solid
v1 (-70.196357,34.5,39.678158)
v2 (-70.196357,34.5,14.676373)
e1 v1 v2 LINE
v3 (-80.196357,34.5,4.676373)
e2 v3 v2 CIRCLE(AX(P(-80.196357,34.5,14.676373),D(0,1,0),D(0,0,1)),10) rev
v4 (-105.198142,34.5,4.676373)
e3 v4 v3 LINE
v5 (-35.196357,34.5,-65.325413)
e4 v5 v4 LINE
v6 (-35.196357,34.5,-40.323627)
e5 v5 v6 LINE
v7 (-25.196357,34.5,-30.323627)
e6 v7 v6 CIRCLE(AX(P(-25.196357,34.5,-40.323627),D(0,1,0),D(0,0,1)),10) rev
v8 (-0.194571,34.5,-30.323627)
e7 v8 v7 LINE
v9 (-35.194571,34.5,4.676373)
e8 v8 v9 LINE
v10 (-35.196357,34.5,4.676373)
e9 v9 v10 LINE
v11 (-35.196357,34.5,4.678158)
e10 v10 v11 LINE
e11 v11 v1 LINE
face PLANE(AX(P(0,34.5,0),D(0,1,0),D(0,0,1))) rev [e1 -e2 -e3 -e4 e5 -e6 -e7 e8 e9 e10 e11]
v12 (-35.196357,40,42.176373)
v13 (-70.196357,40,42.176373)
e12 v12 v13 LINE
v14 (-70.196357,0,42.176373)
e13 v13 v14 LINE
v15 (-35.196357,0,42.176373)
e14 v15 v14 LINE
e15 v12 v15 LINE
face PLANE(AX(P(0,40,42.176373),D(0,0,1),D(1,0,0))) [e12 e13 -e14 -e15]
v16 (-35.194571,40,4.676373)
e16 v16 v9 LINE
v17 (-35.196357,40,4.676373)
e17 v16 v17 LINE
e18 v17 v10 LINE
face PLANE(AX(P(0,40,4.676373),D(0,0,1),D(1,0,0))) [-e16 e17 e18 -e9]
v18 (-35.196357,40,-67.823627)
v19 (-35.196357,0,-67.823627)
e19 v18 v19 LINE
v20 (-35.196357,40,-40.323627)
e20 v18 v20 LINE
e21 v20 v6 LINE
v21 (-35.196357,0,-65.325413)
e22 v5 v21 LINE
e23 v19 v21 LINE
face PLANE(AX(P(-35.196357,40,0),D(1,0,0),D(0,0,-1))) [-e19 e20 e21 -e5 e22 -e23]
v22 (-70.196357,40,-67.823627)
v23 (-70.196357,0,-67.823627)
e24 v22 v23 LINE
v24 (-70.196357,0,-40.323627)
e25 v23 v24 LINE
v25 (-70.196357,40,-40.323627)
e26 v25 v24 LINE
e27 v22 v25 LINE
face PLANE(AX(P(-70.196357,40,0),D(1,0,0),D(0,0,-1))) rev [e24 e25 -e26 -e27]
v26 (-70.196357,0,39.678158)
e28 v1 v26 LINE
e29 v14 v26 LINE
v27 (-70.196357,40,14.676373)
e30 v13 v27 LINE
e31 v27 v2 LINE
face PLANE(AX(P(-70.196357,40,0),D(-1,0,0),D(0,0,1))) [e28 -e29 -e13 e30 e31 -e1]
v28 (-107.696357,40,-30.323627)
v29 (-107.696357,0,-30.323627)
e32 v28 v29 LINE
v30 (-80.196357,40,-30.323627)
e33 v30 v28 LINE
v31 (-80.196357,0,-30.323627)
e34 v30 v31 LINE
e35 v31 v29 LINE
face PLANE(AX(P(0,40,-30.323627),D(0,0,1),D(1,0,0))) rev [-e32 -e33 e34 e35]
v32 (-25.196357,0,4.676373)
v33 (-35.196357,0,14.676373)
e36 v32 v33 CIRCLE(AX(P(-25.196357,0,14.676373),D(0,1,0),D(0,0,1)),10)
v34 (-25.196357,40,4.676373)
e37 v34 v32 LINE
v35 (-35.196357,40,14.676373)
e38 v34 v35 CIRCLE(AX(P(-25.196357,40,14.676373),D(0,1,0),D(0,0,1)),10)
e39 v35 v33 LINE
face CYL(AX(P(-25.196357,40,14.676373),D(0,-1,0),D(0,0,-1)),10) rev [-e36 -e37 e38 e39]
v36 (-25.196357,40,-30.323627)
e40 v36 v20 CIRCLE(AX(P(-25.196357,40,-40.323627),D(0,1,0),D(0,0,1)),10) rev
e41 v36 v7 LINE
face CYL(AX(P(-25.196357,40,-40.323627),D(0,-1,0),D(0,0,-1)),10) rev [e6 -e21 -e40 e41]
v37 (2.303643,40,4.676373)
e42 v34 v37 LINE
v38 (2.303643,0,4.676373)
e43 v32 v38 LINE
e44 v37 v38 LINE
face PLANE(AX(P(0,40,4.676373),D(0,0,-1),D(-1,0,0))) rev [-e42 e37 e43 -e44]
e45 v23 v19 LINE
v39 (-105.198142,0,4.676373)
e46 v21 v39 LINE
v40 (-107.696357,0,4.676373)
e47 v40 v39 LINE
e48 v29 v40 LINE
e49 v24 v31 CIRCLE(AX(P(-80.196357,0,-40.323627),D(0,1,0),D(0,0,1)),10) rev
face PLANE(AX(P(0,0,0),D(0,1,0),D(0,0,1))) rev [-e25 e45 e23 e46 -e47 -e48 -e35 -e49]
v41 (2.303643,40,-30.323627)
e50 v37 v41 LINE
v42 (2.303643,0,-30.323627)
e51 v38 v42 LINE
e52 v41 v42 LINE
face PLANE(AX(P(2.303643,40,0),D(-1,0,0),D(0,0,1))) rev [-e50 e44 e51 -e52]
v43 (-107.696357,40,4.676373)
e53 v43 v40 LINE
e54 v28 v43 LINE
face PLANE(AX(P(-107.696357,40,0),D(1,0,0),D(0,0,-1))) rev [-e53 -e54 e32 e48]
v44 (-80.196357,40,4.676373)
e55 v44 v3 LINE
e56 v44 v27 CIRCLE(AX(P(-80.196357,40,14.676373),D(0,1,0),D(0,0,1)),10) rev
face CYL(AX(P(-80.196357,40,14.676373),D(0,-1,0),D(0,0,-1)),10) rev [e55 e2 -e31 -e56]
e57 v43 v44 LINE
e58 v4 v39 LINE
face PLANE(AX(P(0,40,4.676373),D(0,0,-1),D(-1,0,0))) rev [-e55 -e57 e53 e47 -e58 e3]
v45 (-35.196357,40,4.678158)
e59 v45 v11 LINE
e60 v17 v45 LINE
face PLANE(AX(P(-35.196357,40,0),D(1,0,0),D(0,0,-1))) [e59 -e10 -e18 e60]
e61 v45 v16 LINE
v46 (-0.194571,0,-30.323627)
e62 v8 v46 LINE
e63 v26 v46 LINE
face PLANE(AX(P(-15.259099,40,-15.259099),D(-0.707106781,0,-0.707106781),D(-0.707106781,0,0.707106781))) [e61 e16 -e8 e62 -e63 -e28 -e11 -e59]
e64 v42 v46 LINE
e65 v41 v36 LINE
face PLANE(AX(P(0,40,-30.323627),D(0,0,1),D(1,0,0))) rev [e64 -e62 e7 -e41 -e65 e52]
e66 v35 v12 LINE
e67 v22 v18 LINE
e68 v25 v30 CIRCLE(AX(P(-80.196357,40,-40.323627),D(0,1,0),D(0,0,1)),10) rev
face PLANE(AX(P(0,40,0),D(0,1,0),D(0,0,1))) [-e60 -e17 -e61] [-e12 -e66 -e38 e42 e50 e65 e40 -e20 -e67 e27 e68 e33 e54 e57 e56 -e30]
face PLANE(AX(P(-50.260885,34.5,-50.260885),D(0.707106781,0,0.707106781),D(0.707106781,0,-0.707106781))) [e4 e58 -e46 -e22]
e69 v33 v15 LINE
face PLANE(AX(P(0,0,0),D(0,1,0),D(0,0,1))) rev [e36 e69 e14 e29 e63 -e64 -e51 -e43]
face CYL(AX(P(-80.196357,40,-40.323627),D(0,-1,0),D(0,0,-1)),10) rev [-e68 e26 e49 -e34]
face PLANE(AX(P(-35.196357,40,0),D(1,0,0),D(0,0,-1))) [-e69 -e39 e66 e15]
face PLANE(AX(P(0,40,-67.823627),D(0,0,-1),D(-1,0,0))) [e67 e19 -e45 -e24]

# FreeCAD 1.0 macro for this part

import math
import FreeCAD as App
import Part
import Sketcher
from FreeCAD import Vector
Q = App.Units.Quantity

doc = App.newDocument("Part")
body = doc.addObject("PartDesign::Body", "Body")

# Sketch on XZ plane
sketch1 = body.newObject("Sketcher::SketchObject", "Sketch")
sketch1.AttachmentSupport = (doc.getObject("XZ_Plane"), [""])
sketch1.MapMode = "FlatFace"
sketch1.addGeometry(Part.LineSegment(Vector(-35.1964, -67.8236, 0), Vector(-70.1964, -67.8236, 0)), False)
sketch1.addGeometry(Part.LineSegment(Vector(-70.1964, -67.8236, 0), Vector(-70.1964, -40.3236, 0)), False)
sketch1.addGeometry(Part.ArcOfCircle(Part.Circle(Vector(-80.1964, -40.3236, 0), Vector(0, 0, 1), 10), math.radians(0), math.radians(90)), False)
sketch1.addGeometry(Part.LineSegment(Vector(-80.1964, -30.3236, 0), Vector(-107.6964, -30.3236, 0)), False)
sketch1.addGeometry(Part.LineSegment(Vector(-107.6964, -30.3236, 0), Vector(-107.6964, 4.6764, 0)), False)
sketch1.addGeometry(Part.LineSegment(Vector(-107.6964, 4.6764, 0), Vector(-80.1964, 4.6764, 0)), False)
sketch1.addGeometry(Part.ArcOfCircle(Part.Circle(Vector(-80.1964, 14.6764, 0), Vector(0, 0, 1), 10), math.radians(-90), math.radians(0)), False)
sketch1.addGeometry(Part.LineSegment(Vector(-70.1964, 14.6764, 0), Vector(-70.1964, 42.1764, 0)), False)
sketch1.addGeometry(Part.LineSegment(Vector(-70.1964, 42.1764, 0), Vector(-35.1964, 42.1764, 0)), False)
sketch1.addGeometry(Part.LineSegment(Vector(-35.1964, 42.1764, 0), Vector(-35.1964, 14.6764, 0)), False)
sketch1.addGeometry(Part.ArcOfCircle(Part.Circle(Vector(-25.1964, 14.6764, 0), Vector(0, 0, 1), 10), math.radians(180), math.radians(270)), False)
sketch1.addGeometry(Part.LineSegment(Vector(-25.1964, 4.6764, 0), Vector(2.3036, 4.6764, 0)), False)
sketch1.addGeometry(Part.LineSegment(Vector(2.3036, 4.6764, 0), Vector(2.3036, -30.3236, 0)), False)
sketch1.addGeometry(Part.LineSegment(Vector(2.3036, -30.3236, 0), Vector(-25.1964, -30.3236, 0)), False)
sketch1.addGeometry(Part.ArcOfCircle(Part.Circle(Vector(-25.1964, -40.3236, 0), Vector(0, 0, 1), 10), math.radians(90), math.radians(180)), False)
sketch1.addGeometry(Part.LineSegment(Vector(-35.1964, -40.3236, 0), Vector(-35.1964, -67.8236, 0)), False)
sketch1.addGeometry(Part.LineSegment(Vector(-35.1964, 4.6782, 0), Vector(-35.1964, 4.6764, 0)), False)
sketch1.addGeometry(Part.LineSegment(Vector(-35.1964, 4.6764, 0), Vector(-35.1946, 4.6764, 0)), False)
sketch1.addGeometry(Part.LineSegment(Vector(-35.1946, 4.6764, 0), Vector(-35.1964, 4.6782, 0)), False)
sketch1.addConstraint(Sketcher.Constraint("Coincident", 0, 2, 1, 1))
sketch1.addConstraint(Sketcher.Constraint("Tangent", 1, 2, 2, 1))
sketch1.addConstraint(Sketcher.Constraint("Tangent", 2, 2, 3, 1))
sketch1.addConstraint(Sketcher.Constraint("Coincident", 3, 2, 4, 1))
sketch1.addConstraint(Sketcher.Constraint("Coincident", 4, 2, 5, 1))
sketch1.addConstraint(Sketcher.Constraint("Tangent", 5, 2, 6, 1))
sketch1.addConstraint(Sketcher.Constraint("Tangent", 6, 2, 7, 1))
sketch1.addConstraint(Sketcher.Constraint("Coincident", 7, 2, 8, 1))
sketch1.addConstraint(Sketcher.Constraint("Coincident", 8, 2, 9, 1))
sketch1.addConstraint(Sketcher.Constraint("Tangent", 9, 2, 10, 1))
sketch1.addConstraint(Sketcher.Constraint("Tangent", 10, 2, 11, 1))
sketch1.addConstraint(Sketcher.Constraint("Coincident", 11, 2, 12, 1))
sketch1.addConstraint(Sketcher.Constraint("Coincident", 12, 2, 13, 1))
sketch1.addConstraint(Sketcher.Constraint("Tangent", 13, 2, 14, 1))
sketch1.addConstraint(Sketcher.Constraint("Tangent", 14, 2, 15, 1))
sketch1.addConstraint(Sketcher.Constraint("Coincident", 15, 2, 0, 1))
sketch1.addConstraint(Sketcher.Constraint("Coincident", 16, 2, 17, 1))
sketch1.addConstraint(Sketcher.Constraint("Coincident", 17, 2, 18, 1))
sketch1.addConstraint(Sketcher.Constraint("Coincident", 18, 2, 16, 1))
sketch1.addConstraint(Sketcher.Constraint("Horizontal", 0))
sketch1.addConstraint(Sketcher.Constraint("Vertical", 1))
sketch1.addConstraint(Sketcher.Constraint("Horizontal", 3))
sketch1.addConstraint(Sketcher.Constraint("Vertical", 4))
sketch1.addConstraint(Sketcher.Constraint("Horizontal", 5))
sketch1.addConstraint(Sketcher.Constraint("Vertical", 7))
sketch1.addConstraint(Sketcher.Constraint("Horizontal", 8))
sketch1.addConstraint(Sketcher.Constraint("Vertical", 9))
sketch1.addConstraint(Sketcher.Constraint("Horizontal", 11))
sketch1.addConstraint(Sketcher.Constraint("Vertical", 12))
sketch1.addConstraint(Sketcher.Constraint("Horizontal", 13))
sketch1.addConstraint(Sketcher.Constraint("Vertical", 15))
sketch1.addConstraint(Sketcher.Constraint("Vertical", 16))
sketch1.addConstraint(Sketcher.Constraint("Horizontal", 17))
sketch1.addConstraint(Sketcher.Constraint("Equal", 2, 6))
sketch1.addConstraint(Sketcher.Constraint("Equal", 6, 10))
sketch1.addConstraint(Sketcher.Constraint("Equal", 10, 14))
sketch1.addConstraint(Sketcher.Constraint("Horizontal", 6, 3, 10, 3))
sketch1.addConstraint(Sketcher.Constraint("Horizontal", 2, 3, 14, 3))
sketch1.addConstraint(Sketcher.Constraint("Horizontal", 11, 2, 16, 2))
sketch1.addConstraint(Sketcher.Constraint("Vertical", 2, 3, 6, 3))
sketch1.addConstraint(Sketcher.Constraint("Vertical", 10, 3, 14, 3))
sketch1.addConstraint(Sketcher.Constraint("Vertical", 15, 2, 16, 2))
sketch1.addConstraint(Sketcher.Constraint("Equal", 5, 11))
sketch1.addConstraint(Sketcher.Constraint("Equal", 13, 1))
sketch1.addConstraint(Sketcher.Constraint("Equal", 8, 4))
sketch1.addConstraint(Sketcher.Constraint("Equal", 1, 7))
sketch1.addConstraint(Sketcher.Constraint("Equal", 17, 16))
sketch1.addConstraint(Sketcher.Constraint("Radius", 2, Q("10 mm")))
sketch1.addConstraint(Sketcher.Constraint("DistanceX", 0, 2, 0, 1, Q("35 mm")))
sketch1.addConstraint(Sketcher.Constraint("DistanceX", 3, 2, 3, 1, Q("27.5 mm")))
sketch1.addConstraint(Sketcher.Constraint("DistanceX", 17, 1, 17, 2, Q("0.001786 mm")))
sketch1.addConstraint(Sketcher.Constraint("DistanceX", 17, 2, -1, 1, Q("35.194571 mm")))
sketch1.addConstraint(Sketcher.Constraint("DistanceY", -1, 1, 18, 2, Q("4.678158 mm")))
pad1 = body.newObject("PartDesign::Pad", "Pad")
pad1.Profile = sketch1
pad1.Length = 40
pad1.Reversed = True

# Sketch on XZ plane
sketch2 = body.newObject("Sketcher::SketchObject", "Sketch001")
sketch2.AttachmentSupport = (doc.getObject("XZ_Plane"), [""])
sketch2.MapMode = "FlatFace"
sketch2.addGeometry(Part.LineSegment(Vector(-35.1964, -65.3254, 0), Vector(-105.1981, 4.6764, 0)), False)
sketch2.addGeometry(Part.LineSegment(Vector(-105.1981, 4.6764, 0), Vector(-80.1964, 4.6764, 0)), False)
sketch2.addGeometry(Part.ArcOfCircle(Part.Circle(Vector(-80.1964, 14.6764, 0), Vector(0, 0, 1), 10), math.radians(-90), math.radians(0)), False)
sketch2.addGeometry(Part.LineSegment(Vector(-70.1964, 14.6764, 0), Vector(-70.1964, 39.6782, 0)), False)
sketch2.addGeometry(Part.LineSegment(Vector(-70.1964, 39.6782, 0), Vector(-35.1964, 4.6782, 0)), False)
sketch2.addGeometry(Part.LineSegment(Vector(-35.1964, 4.6782, 0), Vector(-35.1964, 4.6764, 0)), False)
sketch2.addGeometry(Part.LineSegment(Vector(-35.1964, 4.6764, 0), Vector(-35.1946, 4.6764, 0)), False)
sketch2.addGeometry(Part.LineSegment(Vector(-35.1946, 4.6764, 0), Vector(-0.1946, -30.3236, 0)), False)
sketch2.addGeometry(Part.LineSegment(Vector(-0.1946, -30.3236, 0), Vector(-25.1964, -30.3236, 0)), False)
sketch2.addGeometry(Part.ArcOfCircle(Part.Circle(Vector(-25.1964, -40.3236, 0), Vector(0, 0, 1), 10), math.radians(90), math.radians(180)), False)
sketch2.addGeometry(Part.LineSegment(Vector(-35.1964, -40.3236, 0), Vector(-35.1964, -65.3254, 0)), False)
sketch2.addConstraint(Sketcher.Constraint("Coincident", 0, 2, 1, 1))
sketch2.addConstraint(Sketcher.Constraint("Tangent", 1, 2, 2, 1))
sketch2.addConstraint(Sketcher.Constraint("Tangent", 2, 2, 3, 1))
sketch2.addConstraint(Sketcher.Constraint("Coincident", 3, 2, 4, 1))
sketch2.addConstraint(Sketcher.Constraint("Coincident", 4, 2, 5, 1))
sketch2.addConstraint(Sketcher.Constraint("Coincident", 5, 2, 6, 1))
sketch2.addConstraint(Sketcher.Constraint("Coincident", 6, 2, 7, 1))
sketch2.addConstraint(Sketcher.Constraint("Coincident", 7, 2, 8, 1))
sketch2.addConstraint(Sketcher.Constraint("Tangent", 8, 2, 9, 1))
sketch2.addConstraint(Sketcher.Constraint("Tangent", 9, 2, 10, 1))
sketch2.addConstraint(Sketcher.Constraint("Coincident", 10, 2, 0, 1))
sketch2.addConstraint(Sketcher.Constraint("Horizontal", 1))
sketch2.addConstraint(Sketcher.Constraint("Vertical", 3))
sketch2.addConstraint(Sketcher.Constraint("Vertical", 5))
sketch2.addConstraint(Sketcher.Constraint("Horizontal", 6))
sketch2.addConstraint(Sketcher.Constraint("Horizontal", 8))
sketch2.addConstraint(Sketcher.Constraint("Vertical", 10))
sketch2.addConstraint(Sketcher.Constraint("Equal", 2, 9))
sketch2.addConstraint(Sketcher.Constraint("Parallel", 0, 4))
sketch2.addConstraint(Sketcher.Constraint("Parallel", 4, 7))
sketch2.addConstraint(Sketcher.Constraint("Horizontal", 1, 2, 5, 2))
sketch2.addConstraint(Sketcher.Constraint("Vertical", 5, 2, 9, 2))
sketch2.addConstraint(Sketcher.Constraint("Equal", 1, 8))
sketch2.addConstraint(Sketcher.Constraint("Equal", 8, 3))
sketch2.addConstraint(Sketcher.Constraint("Equal", 6, 5))
sketch2.addConstraint(Sketcher.Constraint("Equal", 4, 7))
sketch2.addConstraint(Sketcher.Constraint("Radius", 2, Q("10 mm")))
sketch2.addConstraint(Sketcher.Constraint("DistanceX", 2, 3, 9, 3, Q("55 mm")))
sketch2.addConstraint(Sketcher.Constraint("DistanceX", 1, 1, 1, 2, Q("25.001786 mm")))
sketch2.addConstraint(Sketcher.Constraint("DistanceY", -1, 1, 3, 2, Q("39.678158 mm")))
sketch2.addConstraint(Sketcher.Constraint("DistanceX", 6, 2, -1, 1, Q("35.194571 mm")))
pocket1 = body.newObject("PartDesign::Pocket", "Pocket")
pocket1.Profile = sketch2
pocket1.Length = 34.5

doc.recompute()
